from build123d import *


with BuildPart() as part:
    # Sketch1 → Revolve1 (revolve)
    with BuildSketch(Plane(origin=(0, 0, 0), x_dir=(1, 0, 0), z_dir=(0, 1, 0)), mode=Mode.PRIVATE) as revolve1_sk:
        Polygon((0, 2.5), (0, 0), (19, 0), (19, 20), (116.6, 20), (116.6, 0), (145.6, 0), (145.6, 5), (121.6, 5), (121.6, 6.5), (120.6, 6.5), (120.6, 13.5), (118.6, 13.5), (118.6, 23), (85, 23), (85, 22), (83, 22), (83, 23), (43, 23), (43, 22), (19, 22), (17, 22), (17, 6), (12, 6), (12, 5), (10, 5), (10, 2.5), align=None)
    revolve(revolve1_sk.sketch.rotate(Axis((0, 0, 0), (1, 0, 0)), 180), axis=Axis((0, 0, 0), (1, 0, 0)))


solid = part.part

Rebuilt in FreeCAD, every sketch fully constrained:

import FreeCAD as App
import Part
import Sketcher

V = App.Vector

doc = App.newDocument("Part")
body = doc.addObject("PartDesign::Body", "Body")

sketch1 = body.newObject("Sketcher::SketchObject", "Sketch")
sketch1.AttachmentSupport = (doc.getObject("XZ_Plane"), [""])
sketch1.MapMode = "FlatFace"
sketch1.addGeometry([
    Part.LineSegment(V(0, -2.5, 0), V(0, 0, 0)),
    Part.LineSegment(V(0, 0, 0), V(19, 0, 0)),
    Part.LineSegment(V(19, 0, 0), V(19, -20, 0)),
    Part.LineSegment(V(19, -20, 0), V(116.6, -20, 0)),
    Part.LineSegment(V(116.6, -20, 0), V(116.6, 0, 0)),
    Part.LineSegment(V(116.6, 0, 0), V(145.6, 0, 0)),
    Part.LineSegment(V(145.6, 0, 0), V(145.6, -5, 0)),
    Part.LineSegment(V(145.6, -5, 0), V(121.6, -5, 0)),
    Part.LineSegment(V(121.6, -5, 0), V(121.6, -6.5, 0)),
    Part.LineSegment(V(121.6, -6.5, 0), V(120.6, -6.5, 0)),
    Part.LineSegment(V(120.6, -6.5, 0), V(120.6, -13.5, 0)),
    Part.LineSegment(V(120.6, -13.5, 0), V(118.6, -13.5, 0)),
    Part.LineSegment(V(118.6, -13.5, 0), V(118.6, -23, 0)),
    Part.LineSegment(V(118.6, -23, 0), V(85, -23, 0)),
    Part.LineSegment(V(85, -23, 0), V(85, -22, 0)),
    Part.LineSegment(V(85, -22, 0), V(83, -22, 0)),
    Part.LineSegment(V(83, -22, 0), V(83, -23, 0)),
    Part.LineSegment(V(83, -23, 0), V(43, -23, 0)),
    Part.LineSegment(V(43, -23, 0), V(43, -22, 0)),
    Part.LineSegment(V(43, -22, 0), V(17, -22, 0)),
    Part.LineSegment(V(17, -22, 0), V(17, -6, 0)),
    Part.LineSegment(V(17, -6, 0), V(12, -6, 0)),
    Part.LineSegment(V(12, -6, 0), V(12, -5, 0)),
    Part.LineSegment(V(12, -5, 0), V(10, -5, 0)),
    Part.LineSegment(V(10, -5, 0), V(10, -2.5, 0)),
    Part.LineSegment(V(10, -2.5, 0), V(0, -2.5, 0)),
], False)
sketch1.addConstraint([
    Sketcher.Constraint("Coincident", 0, 2, 1, 1),
    Sketcher.Constraint("Coincident", 1, 2, 2, 1),
    Sketcher.Constraint("Coincident", 2, 2, 3, 1),
    Sketcher.Constraint("Coincident", 3, 2, 4, 1),
    Sketcher.Constraint("Coincident", 4, 2, 5, 1),
    Sketcher.Constraint("Coincident", 5, 2, 6, 1),
    Sketcher.Constraint("Coincident", 6, 2, 7, 1),
    Sketcher.Constraint("Coincident", 7, 2, 8, 1),
    Sketcher.Constraint("Coincident", 8, 2, 9, 1),
    Sketcher.Constraint("Coincident", 9, 2, 10, 1),
    Sketcher.Constraint("Coincident", 10, 2, 11, 1),
    Sketcher.Constraint("Coincident", 11, 2, 12, 1),
    Sketcher.Constraint("Coincident", 12, 2, 13, 1),
    Sketcher.Constraint("Coincident", 13, 2, 14, 1),
    Sketcher.Constraint("Coincident", 14, 2, 15, 1),
    Sketcher.Constraint("Coincident", 15, 2, 16, 1),
    Sketcher.Constraint("Coincident", 16, 2, 17, 1),
    Sketcher.Constraint("Coincident", 17, 2, 18, 1),
    Sketcher.Constraint("Coincident", 18, 2, 19, 1),
    Sketcher.Constraint("Coincident", 19, 2, 20, 1),
    Sketcher.Constraint("Coincident", 20, 2, 21, 1),
    Sketcher.Constraint("Coincident", 21, 2, 22, 1),
    Sketcher.Constraint("Coincident", 22, 2, 23, 1),
    Sketcher.Constraint("Coincident", 23, 2, 24, 1),
    Sketcher.Constraint("Coincident", 24, 2, 25, 1),
    Sketcher.Constraint("Coincident", 25, 2, 0, 1),
    Sketcher.Constraint("Vertical", 0),
    Sketcher.Constraint("Horizontal", 1),
    Sketcher.Constraint("Vertical", 2),
    Sketcher.Constraint("Horizontal", 3),
    Sketcher.Constraint("Vertical", 4),
    Sketcher.Constraint("Horizontal", 5),
    Sketcher.Constraint("Vertical", 6),
    Sketcher.Constraint("Horizontal", 7),
    Sketcher.Constraint("Vertical", 8),
    Sketcher.Constraint("Horizontal", 9),
    Sketcher.Constraint("Vertical", 10),
    Sketcher.Constraint("Horizontal", 11),
    Sketcher.Constraint("Vertical", 12),
    Sketcher.Constraint("Horizontal", 13),
    Sketcher.Constraint("Vertical", 14),
    Sketcher.Constraint("Horizontal", 15),
    Sketcher.Constraint("Vertical", 16),
    Sketcher.Constraint("Horizontal", 17),
    Sketcher.Constraint("Vertical", 18),
    Sketcher.Constraint("Horizontal", 19),
    Sketcher.Constraint("Vertical", 20),
    Sketcher.Constraint("Horizontal", 21),
    Sketcher.Constraint("Vertical", 22),
    Sketcher.Constraint("Horizontal", 23),
    Sketcher.Constraint("Vertical", 24),
    Sketcher.Constraint("Horizontal", 25),
    Sketcher.Constraint("Coincident", 0, 2, -1, 1),
    Sketcher.Constraint("PointOnObject", 4, 2, -1),
    Sketcher.Constraint("Horizontal", 13, 2, 16, 2),
    Sketcher.Constraint("Horizontal", 15, 2, 18, 2),
    Sketcher.Constraint("Horizontal", 7, 2, 22, 2),
    Sketcher.Constraint("Equal", 11, 15),
    Sketcher.Constraint("Equal", 15, 23),
    Sketcher.Constraint("Equal", 21, 6),
    Sketcher.Constraint("Equal", 9, 14),
    Sketcher.Constraint("Equal", 18, 22),
    Sketcher.Constraint("Equal", 0, 24),
    Sketcher.Constraint("DistanceX", 1, 1, 1, 2, 19.0),
    Sketcher.Constraint("DistanceX", 5, 1, 5, 2, 29.0),
    Sketcher.Constraint("DistanceX", 7, 2, 7, 1, 24.0),
    Sketcher.Constraint("DistanceX", 9, 2, 9, 1, 1.0),
    Sketcher.Constraint("DistanceX", 11, 2, 11, 1, 2.0),
    Sketcher.Constraint("DistanceX", 17, 2, 17, 1, 40.0),
    Sketcher.Constraint("DistanceX", 19, 2, 19, 1, 26.0),
    Sketcher.Constraint("DistanceX", 21, 2, 21, 1, 5.0),
    Sketcher.Constraint("DistanceX", 25, 2, 25, 1, 10.0),
    Sketcher.Constraint("DistanceY", 2, 2, 2, 1, 20.0),
    Sketcher.Constraint("DistanceY", 10, 2, 10, 1, 7.0),
    Sketcher.Constraint("DistanceY", 20, 1, 20, 2, 16.0),
    Sketcher.Constraint("DistanceX", 3, 1, 3, 2, 97.6),
    Sketcher.Constraint("DistanceY", 8, 2, 8, 1, 1.5),
])
revolution = body.newObject("PartDesign::Revolution", "Revolution")
revolution.Profile = sketch1
revolution.ReferenceAxis = (sketch1, ["H_Axis"])
revolution.Angle = 360

doc.recompute()
